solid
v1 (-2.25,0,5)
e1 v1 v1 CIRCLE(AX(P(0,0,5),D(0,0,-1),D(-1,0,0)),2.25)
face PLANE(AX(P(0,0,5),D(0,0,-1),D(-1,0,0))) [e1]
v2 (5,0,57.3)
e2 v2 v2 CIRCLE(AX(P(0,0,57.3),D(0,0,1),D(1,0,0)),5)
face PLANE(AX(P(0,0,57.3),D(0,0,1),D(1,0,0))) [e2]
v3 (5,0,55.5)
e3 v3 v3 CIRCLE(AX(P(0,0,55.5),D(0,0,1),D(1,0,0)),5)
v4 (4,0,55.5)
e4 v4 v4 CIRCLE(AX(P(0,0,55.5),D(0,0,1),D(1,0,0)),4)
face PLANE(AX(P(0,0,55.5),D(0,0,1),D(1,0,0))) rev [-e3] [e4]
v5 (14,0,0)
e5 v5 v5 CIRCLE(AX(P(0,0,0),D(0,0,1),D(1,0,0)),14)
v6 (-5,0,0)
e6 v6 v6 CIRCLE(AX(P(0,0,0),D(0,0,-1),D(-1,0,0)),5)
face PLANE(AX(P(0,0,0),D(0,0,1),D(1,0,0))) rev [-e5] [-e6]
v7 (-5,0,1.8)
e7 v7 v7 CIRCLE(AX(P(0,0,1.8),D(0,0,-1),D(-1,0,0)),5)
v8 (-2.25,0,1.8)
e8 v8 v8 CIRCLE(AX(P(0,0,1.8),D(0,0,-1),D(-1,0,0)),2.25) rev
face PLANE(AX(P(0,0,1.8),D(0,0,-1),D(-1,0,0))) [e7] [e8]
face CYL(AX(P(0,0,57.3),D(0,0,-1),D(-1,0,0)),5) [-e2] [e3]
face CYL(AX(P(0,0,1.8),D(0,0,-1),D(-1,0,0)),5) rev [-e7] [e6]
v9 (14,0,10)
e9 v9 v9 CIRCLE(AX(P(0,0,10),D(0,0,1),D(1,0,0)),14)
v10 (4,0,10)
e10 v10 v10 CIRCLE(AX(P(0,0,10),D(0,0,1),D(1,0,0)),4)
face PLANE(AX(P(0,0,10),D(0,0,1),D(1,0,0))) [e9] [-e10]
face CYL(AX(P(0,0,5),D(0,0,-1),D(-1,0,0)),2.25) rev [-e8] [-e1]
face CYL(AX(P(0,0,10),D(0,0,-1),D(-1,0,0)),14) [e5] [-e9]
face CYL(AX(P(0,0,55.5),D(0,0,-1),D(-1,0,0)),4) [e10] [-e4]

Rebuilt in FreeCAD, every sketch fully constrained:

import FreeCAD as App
import Part
import Sketcher
from FreeCAD import Vector

doc = App.newDocument("Part")
body = doc.addObject("PartDesign::Body", "Body")

sketch1 = body.newObject("Sketcher::SketchObject", "Sketch")
sketch1.AttachmentSupport = (doc.getObject("XY_Plane"), [""])
sketch1.MapMode = "FlatFace"
sketch1.addGeometry(Part.Circle(Vector(0, 0, 0), Vector(0, 0, 1), 14), False)
sketch1.addConstraint([
    Sketcher.Constraint("Coincident", 0, 3, -1, 1),
    Sketcher.Constraint("Diameter", 0, 28.0),
])
pad1 = body.newObject("PartDesign::Pad", "Pad")
pad1.Profile = sketch1
pad1.Length = 10

sketch2 = body.newObject("Sketcher::SketchObject", "Sketch001")
sketch2.AttachmentSupport = (doc.getObject("XY_Plane"), [""])
sketch2.MapMode = "FlatFace"
sketch2.addGeometry(Part.Circle(Vector(0, 0, 0), Vector(0, 0, 1), 2.2), False)
sketch2.addConstraint([
    Sketcher.Constraint("Coincident", 0, 3, -1, 1),
    Sketcher.Constraint("Diameter", 0, 4.5),
])
pocket1 = body.newObject("PartDesign::Pocket", "Pocket")
pocket1.Profile = sketch2
pocket1.Length = 5
pocket1.Reversed = True

sketch3 = body.newObject("Sketcher::SketchObject", "Sketch002")
sketch3.AttachmentSupport = (doc.getObject("XY_Plane"), [""])
sketch3.MapMode = "FlatFace"
sketch3.addGeometry(Part.Circle(Vector(0, 0, 0), Vector(0, 0, 1), 5), False)
sketch3.addConstraint([
    Sketcher.Constraint("Coincident", 0, 3, -1, 1),
    Sketcher.Constraint("Diameter", 0, 10.0),
])
pocket2 = body.newObject("PartDesign::Pocket", "Pocket001")
pocket2.Profile = sketch3
pocket2.Length = 1.8
pocket2.Reversed = True

sketch4 = body.newObject("Sketcher::SketchObject", "Sketch003")
sketch4.AttachmentSupport = (doc.getObject("XY_Plane"), [""])
sketch4.MapMode = "FlatFace"
sketch4.AttachmentOffset = App.Placement(Vector(0, 0, 10), App.Rotation())
sketch4.addGeometry(Part.Circle(Vector(0, 0, 0), Vector(0, 0, 1), 4), False)
sketch4.addConstraint([
    Sketcher.Constraint("Coincident", 0, 3, -1, 1),
    Sketcher.Constraint("Diameter", 0, 8.0),
])
pad2 = body.newObject("PartDesign::Pad", "Pad001")
pad2.Profile = sketch4
pad2.Length = 45.5

sketch5 = body.newObject("Sketcher::SketchObject", "Sketch004")
sketch5.AttachmentSupport = (doc.getObject("XY_Plane"), [""])
sketch5.MapMode = "FlatFace"
sketch5.AttachmentOffset = App.Placement(Vector(0, 0, 55.5), App.Rotation())
sketch5.addGeometry(Part.Circle(Vector(0, 0, 0), Vector(0, 0, 1), 5), False)
sketch5.addConstraint([
    Sketcher.Constraint("Coincident", 0, 3, -1, 1),
    Sketcher.Constraint("Diameter", 0, 10.0),
])
pad3 = body.newObject("PartDesign::Pad", "Pad002")
pad3.Profile = sketch5
pad3.Length = 1.8

doc.recompute()
